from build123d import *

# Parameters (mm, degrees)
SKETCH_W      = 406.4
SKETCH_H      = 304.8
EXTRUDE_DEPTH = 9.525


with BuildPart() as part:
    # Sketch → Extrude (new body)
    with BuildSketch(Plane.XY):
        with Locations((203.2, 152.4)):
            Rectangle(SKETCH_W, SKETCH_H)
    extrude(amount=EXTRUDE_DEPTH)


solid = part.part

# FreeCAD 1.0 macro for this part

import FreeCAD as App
import Part
import Sketcher

V = App.Vector
Q = App.Units.Quantity

doc = App.newDocument("Part")
body = doc.addObject("PartDesign::Body", "Body")

# Sketch on XY plane
sketch1 = body.newObject("Sketcher::SketchObject", "Sketch")
sketch1.AttachmentSupport = (doc.getObject("XY_Plane"), [""])
sketch1.MapMode = "FlatFace"
sketch1.addGeometry([
    Part.LineSegment(V(0, 304.8, 0), V(0, 0, 0)),
    Part.LineSegment(V(0, 0, 0), V(406.4, 0, 0)),
    Part.LineSegment(V(406.4, 0, 0), V(406.4, 304.8, 0)),
    Part.LineSegment(V(406.4, 304.8, 0), V(0, 304.8, 0)),
], False)
sketch1.addConstraint([
    Sketcher.Constraint("Coincident", 0, 2, 1, 1),
    Sketcher.Constraint("Coincident", 1, 2, 2, 1),
    Sketcher.Constraint("Coincident", 2, 2, 3, 1),
    Sketcher.Constraint("Coincident", 3, 2, 0, 1),
    Sketcher.Constraint("Vertical", 0),
    Sketcher.Constraint("Horizontal", 1),
    Sketcher.Constraint("Vertical", 2),
    Sketcher.Constraint("Horizontal", 3),
    Sketcher.Constraint("Coincident", 0, 2, -1, 1),
    Sketcher.Constraint("DistanceX", 1, 1, 1, 2, Q("16 in")),
    Sketcher.Constraint("DistanceY", 0, 2, 0, 1, Q("12 in")),
])
pad1 = body.newObject("PartDesign::Pad", "Pad")
pad1.Profile = sketch1
pad1.Length = Q("0.375 in")

doc.recompute()
